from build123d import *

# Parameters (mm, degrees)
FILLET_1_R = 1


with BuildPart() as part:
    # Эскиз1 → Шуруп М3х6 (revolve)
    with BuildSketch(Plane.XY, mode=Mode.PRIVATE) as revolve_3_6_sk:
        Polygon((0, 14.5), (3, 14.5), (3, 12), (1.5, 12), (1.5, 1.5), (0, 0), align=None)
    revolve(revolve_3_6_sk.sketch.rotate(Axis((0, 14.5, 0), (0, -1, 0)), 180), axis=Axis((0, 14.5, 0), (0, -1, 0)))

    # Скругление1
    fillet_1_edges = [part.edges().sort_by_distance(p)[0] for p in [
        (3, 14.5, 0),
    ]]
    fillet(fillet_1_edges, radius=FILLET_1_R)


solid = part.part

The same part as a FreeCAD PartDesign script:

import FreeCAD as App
import Part
import Sketcher
from FreeCAD import Vector
Q = App.Units.Quantity


def edges_at(feature, points):
    """Names of the edges that pass closest to the given points."""
    edges = feature.Shape.Edges
    near = lambda p: min(range(len(edges)), key=lambda i: edges[i].distToShape(Part.Vertex(*p))[0])
    return sorted({f"Edge{near(p) + 1}" for p in points})


def add_polygon(sketch, points):
    """Adds a closed chain of lines whose ends are joined by coincident constraints."""
    first, n = sketch.GeometryCount, len(points)
    for a, b in zip(points, points[1:] + points[:1]):
        sketch.addGeometry(Part.LineSegment(App.Vector(*a, 0), App.Vector(*b, 0)), False)
    for i in range(n):
        sketch.addConstraint(Sketcher.Constraint("Coincident", first + i, 2, first + (i + 1) % n, 1))

doc = App.newDocument("Part")
params = doc.addObject("Spreadsheet::Sheet", "Params")
for row, (alias, value) in enumerate([
    ("sketch1_width", "3 mm"),
    ("sketch1_width2", "1.5 mm"),
    ("sketch1_height", "14.5 mm"),
    ("sketch1_height2", "10.5 mm"),
    ("revolution_angle", "360 deg"),
    ("fillet_radius", "1 mm"),
], start=1):
    params.set(f"A{row}", alias)
    params.set(f"B{row}", "=" + value)
    params.setAlias(f"B{row}", alias)

body = doc.addObject("PartDesign::Body", "Body")

sketch1 = body.newObject("Sketcher::SketchObject", "Sketch")
sketch1.AttachmentSupport = (doc.getObject("XY_Plane"), [""])
sketch1.MapMode = "FlatFace"
add_polygon(sketch1, [(3, 14.5), (0, 14.5), (0, 0), (1.5, 1.5), (1.5, 12), (3, 12)])
sketch1.addConstraint([
    Sketcher.Constraint("Horizontal", 0),
    Sketcher.Constraint("Vertical", 1),
    Sketcher.Constraint("Vertical", 3),
    Sketcher.Constraint("Horizontal", 4),
    Sketcher.Constraint("Vertical", 5),
    Sketcher.Constraint("Coincident", 1, 2, -1, 1),
    Sketcher.Constraint("DistanceX", 0, 2, 0, 1, 3.0),
    Sketcher.Constraint("Angle", 2, Q("45 deg")),
    Sketcher.Constraint("DistanceX", 4, 1, 4, 2, 1.5),
    Sketcher.Constraint("DistanceY", 1, 2, 1, 1, 14.5),
    Sketcher.Constraint("DistanceY", 3, 1, 3, 2, 10.5),
])
sketch1.setExpression("Constraints[12]", "Params.sketch1_width")
sketch1.setExpression("Constraints[14]", "Params.sketch1_width2")
sketch1.setExpression("Constraints[15]", "Params.sketch1_height")
sketch1.setExpression("Constraints[16]", "Params.sketch1_height2")
revolution = body.newObject("PartDesign::Revolution", "Revolution")
revolution.Profile = sketch1
revolution.ReferenceAxis = (sketch1, ["V_Axis"])
revolution.setExpression("Angle", "Params.revolution_angle")
doc.recompute()

fillet = body.newObject("PartDesign::Fillet", "Fillet")
fillet.Base = (revolution, edges_at(revolution, [(3, 14.5, 0)]))
fillet.setExpression("Radius", "Params.fillet_radius")

doc.recompute()
